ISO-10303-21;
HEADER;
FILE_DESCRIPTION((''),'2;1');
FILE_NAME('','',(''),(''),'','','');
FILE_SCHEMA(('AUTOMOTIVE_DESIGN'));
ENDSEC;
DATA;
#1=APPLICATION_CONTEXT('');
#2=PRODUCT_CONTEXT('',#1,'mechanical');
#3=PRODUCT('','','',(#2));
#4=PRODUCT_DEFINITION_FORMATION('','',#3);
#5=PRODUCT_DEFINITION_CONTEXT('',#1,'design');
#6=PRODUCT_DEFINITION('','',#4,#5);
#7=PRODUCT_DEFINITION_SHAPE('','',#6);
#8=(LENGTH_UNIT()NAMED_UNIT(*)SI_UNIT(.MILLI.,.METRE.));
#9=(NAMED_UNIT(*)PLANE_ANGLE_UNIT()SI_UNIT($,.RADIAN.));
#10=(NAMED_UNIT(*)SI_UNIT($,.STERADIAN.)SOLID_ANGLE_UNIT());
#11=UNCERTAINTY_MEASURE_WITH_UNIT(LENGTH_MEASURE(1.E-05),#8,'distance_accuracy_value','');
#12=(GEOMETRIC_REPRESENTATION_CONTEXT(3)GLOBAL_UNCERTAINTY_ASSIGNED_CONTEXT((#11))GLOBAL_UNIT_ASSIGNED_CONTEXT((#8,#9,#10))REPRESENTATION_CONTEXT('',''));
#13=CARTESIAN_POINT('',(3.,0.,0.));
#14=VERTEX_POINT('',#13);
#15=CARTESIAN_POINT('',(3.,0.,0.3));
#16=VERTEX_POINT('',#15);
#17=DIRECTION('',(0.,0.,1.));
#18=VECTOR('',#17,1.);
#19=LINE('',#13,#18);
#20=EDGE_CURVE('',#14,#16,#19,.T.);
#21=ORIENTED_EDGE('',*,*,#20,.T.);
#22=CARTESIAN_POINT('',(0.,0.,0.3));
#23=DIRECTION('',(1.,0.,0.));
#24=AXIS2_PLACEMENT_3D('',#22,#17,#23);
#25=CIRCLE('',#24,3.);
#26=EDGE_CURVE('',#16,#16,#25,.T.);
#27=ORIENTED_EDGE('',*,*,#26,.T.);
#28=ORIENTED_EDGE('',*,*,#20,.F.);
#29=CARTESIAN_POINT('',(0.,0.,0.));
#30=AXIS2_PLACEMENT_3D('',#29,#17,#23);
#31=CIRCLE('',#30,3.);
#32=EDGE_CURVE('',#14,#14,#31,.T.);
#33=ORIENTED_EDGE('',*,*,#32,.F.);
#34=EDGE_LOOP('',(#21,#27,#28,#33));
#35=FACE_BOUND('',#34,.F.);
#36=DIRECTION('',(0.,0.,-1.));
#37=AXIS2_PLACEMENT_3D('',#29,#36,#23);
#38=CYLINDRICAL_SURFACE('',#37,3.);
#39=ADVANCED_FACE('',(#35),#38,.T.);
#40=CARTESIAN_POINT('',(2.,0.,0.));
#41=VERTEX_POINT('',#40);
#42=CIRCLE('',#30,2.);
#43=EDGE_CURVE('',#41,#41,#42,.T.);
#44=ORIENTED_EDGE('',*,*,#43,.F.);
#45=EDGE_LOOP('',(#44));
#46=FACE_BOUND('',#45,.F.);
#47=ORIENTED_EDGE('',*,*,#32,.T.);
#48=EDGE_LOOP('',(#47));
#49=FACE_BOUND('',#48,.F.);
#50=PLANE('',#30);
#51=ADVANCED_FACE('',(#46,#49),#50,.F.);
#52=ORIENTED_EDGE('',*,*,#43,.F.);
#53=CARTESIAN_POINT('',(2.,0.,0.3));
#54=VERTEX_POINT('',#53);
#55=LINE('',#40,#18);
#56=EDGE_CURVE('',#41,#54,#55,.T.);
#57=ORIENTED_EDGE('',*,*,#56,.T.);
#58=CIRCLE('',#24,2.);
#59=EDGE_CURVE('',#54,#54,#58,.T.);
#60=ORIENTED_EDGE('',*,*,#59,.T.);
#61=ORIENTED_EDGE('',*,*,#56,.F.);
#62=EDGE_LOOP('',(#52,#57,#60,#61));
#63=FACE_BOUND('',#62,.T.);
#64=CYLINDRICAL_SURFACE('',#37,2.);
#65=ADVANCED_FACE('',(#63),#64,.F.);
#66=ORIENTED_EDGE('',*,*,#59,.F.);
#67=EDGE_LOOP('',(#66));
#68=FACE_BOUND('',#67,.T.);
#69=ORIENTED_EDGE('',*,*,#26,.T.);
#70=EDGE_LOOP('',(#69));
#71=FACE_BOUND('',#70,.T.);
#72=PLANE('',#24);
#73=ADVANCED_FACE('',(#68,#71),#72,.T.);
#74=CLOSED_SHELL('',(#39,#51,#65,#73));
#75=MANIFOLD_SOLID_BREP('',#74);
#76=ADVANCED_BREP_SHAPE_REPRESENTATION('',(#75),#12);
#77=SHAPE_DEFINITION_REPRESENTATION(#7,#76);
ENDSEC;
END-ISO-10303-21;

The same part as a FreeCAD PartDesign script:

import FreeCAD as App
import Part
import Sketcher
Q = App.Units.Quantity

doc = App.newDocument("Part")
body = doc.addObject("PartDesign::Body", "Body")

# Sketch on XY plane
sketch1 = doc.addObject("Sketcher::SketchObject", "Sketch")
body.addObject(sketch1)
sketch1.AttachmentSupport = (doc.XY_Plane, [""])
sketch1.MapMode = "FlatFace"
sketch1.addGeometry([
    Part.Circle(App.Vector(0, 0, 0), App.Vector(0, 0, 1), 3),
    Part.Circle(App.Vector(0, 0, 0), App.Vector(0, 0, 1), 2),
], False)
sketch1.addConstraint([
    Sketcher.Constraint("Coincident", 0, 3, -1, 1),
    Sketcher.Constraint("Coincident", 1, 3, -1, 1),
    Sketcher.Constraint("Diameter", 0, Q("6 mm")),
    Sketcher.Constraint("Diameter", 1, Q("4 mm")),
])
pad1 = doc.addObject("PartDesign::Pad", "Pad")
body.addObject(pad1)
pad1.Profile = sketch1
pad1.Length = 0.3

doc.recompute()
